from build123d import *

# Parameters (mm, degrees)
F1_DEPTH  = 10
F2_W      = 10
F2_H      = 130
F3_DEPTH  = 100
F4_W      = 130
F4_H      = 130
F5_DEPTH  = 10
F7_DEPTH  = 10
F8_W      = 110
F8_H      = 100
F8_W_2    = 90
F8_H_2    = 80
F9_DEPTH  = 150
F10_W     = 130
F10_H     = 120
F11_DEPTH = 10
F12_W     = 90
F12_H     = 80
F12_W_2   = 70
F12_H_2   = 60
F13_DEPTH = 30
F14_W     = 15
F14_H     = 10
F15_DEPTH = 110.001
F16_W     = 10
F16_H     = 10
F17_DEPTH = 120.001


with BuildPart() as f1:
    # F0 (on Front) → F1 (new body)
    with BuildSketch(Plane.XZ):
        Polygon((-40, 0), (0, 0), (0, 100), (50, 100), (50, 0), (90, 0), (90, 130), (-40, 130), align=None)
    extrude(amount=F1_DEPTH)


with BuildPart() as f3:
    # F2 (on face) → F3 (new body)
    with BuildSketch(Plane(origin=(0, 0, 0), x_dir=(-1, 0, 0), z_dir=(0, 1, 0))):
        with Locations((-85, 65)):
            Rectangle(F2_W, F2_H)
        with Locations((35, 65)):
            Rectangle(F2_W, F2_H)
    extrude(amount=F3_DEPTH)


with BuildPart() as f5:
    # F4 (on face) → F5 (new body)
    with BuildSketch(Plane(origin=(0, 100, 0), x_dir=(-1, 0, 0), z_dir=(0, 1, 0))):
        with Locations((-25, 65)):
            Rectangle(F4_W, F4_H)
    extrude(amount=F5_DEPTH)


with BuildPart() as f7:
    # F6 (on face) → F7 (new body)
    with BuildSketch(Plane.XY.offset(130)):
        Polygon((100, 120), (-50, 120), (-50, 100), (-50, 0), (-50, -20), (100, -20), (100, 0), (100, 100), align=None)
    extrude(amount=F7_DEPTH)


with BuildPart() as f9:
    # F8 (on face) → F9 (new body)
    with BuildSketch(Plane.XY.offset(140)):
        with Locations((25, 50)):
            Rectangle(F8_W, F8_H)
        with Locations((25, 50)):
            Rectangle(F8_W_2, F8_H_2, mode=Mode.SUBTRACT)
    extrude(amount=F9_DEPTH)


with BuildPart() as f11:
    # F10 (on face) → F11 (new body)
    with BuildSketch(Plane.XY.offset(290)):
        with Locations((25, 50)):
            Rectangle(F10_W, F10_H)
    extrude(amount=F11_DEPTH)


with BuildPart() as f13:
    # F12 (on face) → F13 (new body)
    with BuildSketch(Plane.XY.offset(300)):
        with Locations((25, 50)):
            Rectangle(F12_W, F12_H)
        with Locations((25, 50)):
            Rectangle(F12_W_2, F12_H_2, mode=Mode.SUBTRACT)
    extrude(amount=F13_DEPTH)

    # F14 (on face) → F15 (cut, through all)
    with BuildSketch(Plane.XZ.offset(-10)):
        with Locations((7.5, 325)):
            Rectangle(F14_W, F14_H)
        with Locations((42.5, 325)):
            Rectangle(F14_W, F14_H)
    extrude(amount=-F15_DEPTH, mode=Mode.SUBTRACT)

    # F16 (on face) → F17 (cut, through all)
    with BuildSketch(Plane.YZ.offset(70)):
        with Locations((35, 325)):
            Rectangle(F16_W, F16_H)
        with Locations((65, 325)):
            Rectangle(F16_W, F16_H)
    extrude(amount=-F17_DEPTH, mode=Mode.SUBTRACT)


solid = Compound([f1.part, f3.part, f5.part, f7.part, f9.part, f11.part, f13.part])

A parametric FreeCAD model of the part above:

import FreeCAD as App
import Part
import Sketcher
Q = App.Units.Quantity


def add_polygon(sketch, points):
    """Adds a closed chain of lines whose ends are joined by coincident constraints."""
    first, n = sketch.GeometryCount, len(points)
    for a, b in zip(points, points[1:] + points[:1]):
        sketch.addGeometry(Part.LineSegment(App.Vector(*a, 0), App.Vector(*b, 0)), False)
    for i in range(n):
        sketch.addConstraint(Sketcher.Constraint("Coincident", first + i, 2, first + (i + 1) % n, 1))

doc = App.newDocument("Part")
body = doc.addObject("PartDesign::Body", "Body")

sketch1 = body.newObject("Sketcher::SketchObject", "Sketch")
sketch1.AttachmentSupport = (doc.getObject("XZ_Plane"), [""])
sketch1.MapMode = "FlatFace"
add_polygon(sketch1, [(-40, 0), (0, 0), (0, 100), (50, 100), (50, 0), (90, 0), (90, 130), (-40, 130)])
sketch1.addConstraint([
    Sketcher.Constraint("Horizontal", 0),
    Sketcher.Constraint("Vertical", 1),
    Sketcher.Constraint("Horizontal", 2),
    Sketcher.Constraint("Vertical", 3),
    Sketcher.Constraint("Horizontal", 4),
    Sketcher.Constraint("Vertical", 5),
    Sketcher.Constraint("Horizontal", 6),
    Sketcher.Constraint("Vertical", 7),
    Sketcher.Constraint("Coincident", 0, 2, -1, 1),
    Sketcher.Constraint("PointOnObject", 3, 2, -1),
    Sketcher.Constraint("Equal", 0, 4),
    Sketcher.Constraint("Equal", 6, 5),
    Sketcher.Constraint("DistanceX", 0, 1, 0, 2, Q("40 mm")),
    Sketcher.Constraint("DistanceX", 2, 1, 2, 2, Q("50 mm")),
    Sketcher.Constraint("DistanceY", 1, 1, 1, 2, Q("100 mm")),
])
pad1 = body.newObject("PartDesign::Pad", "Pad")
pad1.Profile = sketch1
pad1.Length = 10
body2 = doc.addObject("PartDesign::Body", "Body001")
body2.AllowCompound = True

sketch2 = body2.newObject("Sketcher::SketchObject", "Sketch001")
sketch2.AttachmentSupport = (doc.getObject("XZ_Plane001"), [""])
sketch2.MapMode = "FlatFace"
add_polygon(sketch2, [(90, 130), (90, 0), (80, 0), (80, 130)])
add_polygon(sketch2, [(-30, 130), (-30, 0), (-40, 0), (-40, 130)])
sketch2.addConstraint([
    Sketcher.Constraint("Vertical", 0),
    Sketcher.Constraint("Horizontal", 1),
    Sketcher.Constraint("Vertical", 2),
    Sketcher.Constraint("Horizontal", 3),
    Sketcher.Constraint("Vertical", 4),
    Sketcher.Constraint("Horizontal", 5),
    Sketcher.Constraint("Vertical", 6),
    Sketcher.Constraint("Horizontal", 7),
    Sketcher.Constraint("PointOnObject", 0, 2, -1),
    Sketcher.Constraint("PointOnObject", 4, 2, -1),
    Sketcher.Constraint("Horizontal", 3, 2, 6, 2),
    Sketcher.Constraint("Equal", 3, 5),
    Sketcher.Constraint("DistanceX", 1, 2, 1, 1, Q("10 mm")),
    Sketcher.Constraint("DistanceY", 0, 2, 0, 1, Q("130 mm")),
    Sketcher.Constraint("DistanceX", -1, 1, 0, 2, Q("90 mm")),
    Sketcher.Constraint("DistanceX", 4, 2, -1, 1, Q("30 mm")),
])
pad2 = body2.newObject("PartDesign::Pad", "Pad001")
pad2.Profile = sketch2
pad2.Length = 100
pad2.Reversed = True
body3 = doc.addObject("PartDesign::Body", "Body002")

sketch3 = body3.newObject("Sketcher::SketchObject", "Sketch002")
sketch3.AttachmentSupport = (doc.getObject("XZ_Plane002"), [""])
sketch3.MapMode = "FlatFace"
sketch3.AttachmentOffset = App.Placement(App.Vector(0, 0, -100), App.Rotation())
add_polygon(sketch3, [(90, 130), (90, 0), (-40, 0), (-40, 130)])
sketch3.addConstraint([
    Sketcher.Constraint("Vertical", 0),
    Sketcher.Constraint("Horizontal", 1),
    Sketcher.Constraint("Vertical", 2),
    Sketcher.Constraint("Horizontal", 3),
    Sketcher.Constraint("PointOnObject", 0, 2, -1),
    Sketcher.Constraint("Equal", 3, 0),
    Sketcher.Constraint("DistanceX", 1, 2, 1, 1, Q("130 mm")),
    Sketcher.Constraint("DistanceX", -1, 1, 0, 2, Q("90 mm")),
])
pad3 = body3.newObject("PartDesign::Pad", "Pad002")
pad3.Profile = sketch3
pad3.Length = 10
pad3.Reversed = True
body4 = doc.addObject("PartDesign::Body", "Body003")

sketch4 = body4.newObject("Sketcher::SketchObject", "Sketch003")
sketch4.AttachmentSupport = (doc.getObject("XY_Plane003"), [""])
sketch4.MapMode = "FlatFace"
sketch4.AttachmentOffset = App.Placement(App.Vector(0, 0, 130), App.Rotation())
add_polygon(sketch4, [(100, 120), (-50, 120), (-50, -20), (100, -20)])
sketch4.addConstraint([
    Sketcher.Constraint("Horizontal", 0),
    Sketcher.Constraint("Vertical", 1),
    Sketcher.Constraint("Horizontal", 2),
    Sketcher.Constraint("Vertical", 3),
    Sketcher.Constraint("DistanceX", 0, 2, 0, 1, Q("150 mm")),
    Sketcher.Constraint("DistanceY", 1, 2, 1, 1, Q("140 mm")),
    Sketcher.Constraint("DistanceX", 0, 2, -1, 1, Q("50 mm")),
    Sketcher.Constraint("DistanceY", -1, 1, 0, 2, Q("120 mm")),
])
pad4 = body4.newObject("PartDesign::Pad", "Pad003")
pad4.Profile = sketch4
pad4.Length = 10
body5 = doc.addObject("PartDesign::Body", "Body004")

sketch5 = body5.newObject("Sketcher::SketchObject", "Sketch004")
sketch5.AttachmentSupport = (doc.getObject("XY_Plane004"), [""])
sketch5.MapMode = "FlatFace"
sketch5.AttachmentOffset = App.Placement(App.Vector(0, 0, 140), App.Rotation())
add_polygon(sketch5, [(-30, 100), (-30, 0), (80, 0), (80, 100)])
add_polygon(sketch5, [(70, 10), (-20, 10), (-20, 90), (70, 90)])
sketch5.addConstraint([
    Sketcher.Constraint("Vertical", 0),
    Sketcher.Constraint("Horizontal", 1),
    Sketcher.Constraint("Vertical", 2),
    Sketcher.Constraint("Horizontal", 3),
    Sketcher.Constraint("Horizontal", 4),
    Sketcher.Constraint("Vertical", 5),
    Sketcher.Constraint("Horizontal", 6),
    Sketcher.Constraint("Vertical", 7),
    Sketcher.Constraint("PointOnObject", 0, 2, -1),
    Sketcher.Constraint("DistanceX", 1, 1, 1, 2, Q("110 mm")),
    Sketcher.Constraint("DistanceX", 4, 2, 4, 1, Q("90 mm")),
    Sketcher.Constraint("DistanceY", 0, 2, 0, 1, Q("100 mm")),
    Sketcher.Constraint("DistanceY", 5, 1, 5, 2, Q("80 mm")),
    Sketcher.Constraint("DistanceX", 0, 2, -1, 1, Q("30 mm")),
    Sketcher.Constraint("DistanceX", 4, 2, -1, 1, Q("20 mm")),
    Sketcher.Constraint("DistanceY", -1, 1, 4, 2, Q("10 mm")),
])
pad5 = body5.newObject("PartDesign::Pad", "Pad004")
pad5.Profile = sketch5
pad5.Length = 150
body6 = doc.addObject("PartDesign::Body", "Body005")

sketch6 = body6.newObject("Sketcher::SketchObject", "Sketch005")
sketch6.AttachmentSupport = (doc.getObject("XY_Plane005"), [""])
sketch6.MapMode = "FlatFace"
sketch6.AttachmentOffset = App.Placement(App.Vector(0, 0, 290), App.Rotation())
add_polygon(sketch6, [(-40, 110), (-40, -10), (90, -10), (90, 110)])
sketch6.addConstraint([
    Sketcher.Constraint("Vertical", 0),
    Sketcher.Constraint("Horizontal", 1),
    Sketcher.Constraint("Vertical", 2),
    Sketcher.Constraint("Horizontal", 3),
    Sketcher.Constraint("DistanceX", 1, 1, 1, 2, Q("130 mm")),
    Sketcher.Constraint("DistanceY", 0, 2, 0, 1, Q("120 mm")),
    Sketcher.Constraint("DistanceX", 0, 2, -1, 1, Q("40 mm")),
    Sketcher.Constraint("DistanceY", 0, 2, -1, 1, Q("10 mm")),
])
pad6 = body6.newObject("PartDesign::Pad", "Pad005")
pad6.Profile = sketch6
pad6.Length = 10
body7 = doc.addObject("PartDesign::Body", "Body006")

sketch7 = body7.newObject("Sketcher::SketchObject", "Sketch006")
sketch7.AttachmentSupport = (doc.getObject("XY_Plane006"), [""])
sketch7.MapMode = "FlatFace"
sketch7.AttachmentOffset = App.Placement(App.Vector(0, 0, 300), App.Rotation())
add_polygon(sketch7, [(-20, 90), (-20, 10), (70, 10), (70, 90)])
add_polygon(sketch7, [(60, 20), (-10, 20), (-10, 80), (60, 80)])
sketch7.addConstraint([
    Sketcher.Constraint("Vertical", 0),
    Sketcher.Constraint("Horizontal", 1),
    Sketcher.Constraint("Vertical", 2),
    Sketcher.Constraint("Horizontal", 3),
    Sketcher.Constraint("Horizontal", 4),
    Sketcher.Constraint("Vertical", 5),
    Sketcher.Constraint("Horizontal", 6),
    Sketcher.Constraint("Vertical", 7),
    Sketcher.Constraint("DistanceX", 1, 1, 1, 2, Q("90 mm")),
    Sketcher.Constraint("DistanceX", 4, 2, 4, 1, Q("70 mm")),
    Sketcher.Constraint("DistanceY", 0, 2, 0, 1, Q("80 mm")),
    Sketcher.Constraint("DistanceY", 5, 1, 5, 2, Q("60 mm")),
    Sketcher.Constraint("DistanceX", 0, 2, -1, 1, Q("20 mm")),
    Sketcher.Constraint("DistanceY", -1, 1, 0, 2, Q("10 mm")),
    Sketcher.Constraint("DistanceX", 4, 2, -1, 1, Q("10 mm")),
    Sketcher.Constraint("DistanceY", -1, 1, 4, 2, Q("20 mm")),
])
pad7 = body7.newObject("PartDesign::Pad", "Pad006")
pad7.Profile = sketch7
pad7.Length = 30

sketch8 = body7.newObject("Sketcher::SketchObject", "Sketch007")
sketch8.AttachmentSupport = (doc.getObject("XZ_Plane006"), [""])
sketch8.MapMode = "FlatFace"
sketch8.AttachmentOffset = App.Placement(App.Vector(0, 0, -10), App.Rotation())
add_polygon(sketch8, [(0, 330), (0, 320), (15, 320), (15, 330)])
add_polygon(sketch8, [(35, 330), (35, 320), (50, 320), (50, 330)])
sketch8.addConstraint([
    Sketcher.Constraint("Vertical", 0),
    Sketcher.Constraint("Horizontal", 1),
    Sketcher.Constraint("Vertical", 2),
    Sketcher.Constraint("Horizontal", 3),
    Sketcher.Constraint("Vertical", 4),
    Sketcher.Constraint("Horizontal", 5),
    Sketcher.Constraint("Vertical", 6),
    Sketcher.Constraint("Horizontal", 7),
    Sketcher.Constraint("PointOnObject", 0, 2, -2),
    Sketcher.Constraint("Horizontal", 1, 2, 4, 2),
    Sketcher.Constraint("Horizontal", 3, 2, 6, 2),
    Sketcher.Constraint("Equal", 3, 5),
    Sketcher.Constraint("DistanceX", 1, 1, 1, 2, Q("15 mm")),
    Sketcher.Constraint("DistanceY", 0, 2, 0, 1, Q("10 mm")),
    Sketcher.Constraint("DistanceY", -1, 1, 0, 2, Q("320 mm")),
    Sketcher.Constraint("DistanceX", -1, 1, 4, 2, Q("35 mm")),
])
pocket1 = body7.newObject("PartDesign::Pocket", "Pocket")
pocket1.Profile = sketch8
pocket1.Type = "ThroughAll"

sketch9 = body7.newObject("Sketcher::SketchObject", "Sketch008")
sketch9.AttachmentSupport = (doc.getObject("YZ_Plane006"), [""])
sketch9.MapMode = "FlatFace"
sketch9.AttachmentOffset = App.Placement(App.Vector(0, 0, 70), App.Rotation())
add_polygon(sketch9, [(30, 330), (30, 320), (40, 320), (40, 330)])
add_polygon(sketch9, [(60, 330), (60, 320), (70, 320), (70, 330)])
sketch9.addConstraint([
    Sketcher.Constraint("Vertical", 0),
    Sketcher.Constraint("Horizontal", 1),
    Sketcher.Constraint("Vertical", 2),
    Sketcher.Constraint("Horizontal", 3),
    Sketcher.Constraint("Vertical", 4),
    Sketcher.Constraint("Horizontal", 5),
    Sketcher.Constraint("Vertical", 6),
    Sketcher.Constraint("Horizontal", 7),
    Sketcher.Constraint("Horizontal", 1, 2, 4, 2),
    Sketcher.Constraint("Horizontal", 3, 2, 6, 2),
    Sketcher.Constraint("Equal", 3, 5),
    Sketcher.Constraint("Equal", 7, 0),
    Sketcher.Constraint("DistanceX", 1, 1, 1, 2, Q("10 mm")),
    Sketcher.Constraint("DistanceX", -1, 1, 0, 2, Q("30 mm")),
    Sketcher.Constraint("DistanceY", -1, 1, 0, 2, Q("320 mm")),
    Sketcher.Constraint("DistanceX", -1, 1, 4, 2, Q("60 mm")),
])
pocket2 = body7.newObject("PartDesign::Pocket", "Pocket001")
pocket2.Profile = sketch9
pocket2.Type = "ThroughAll"

doc.recompute()
